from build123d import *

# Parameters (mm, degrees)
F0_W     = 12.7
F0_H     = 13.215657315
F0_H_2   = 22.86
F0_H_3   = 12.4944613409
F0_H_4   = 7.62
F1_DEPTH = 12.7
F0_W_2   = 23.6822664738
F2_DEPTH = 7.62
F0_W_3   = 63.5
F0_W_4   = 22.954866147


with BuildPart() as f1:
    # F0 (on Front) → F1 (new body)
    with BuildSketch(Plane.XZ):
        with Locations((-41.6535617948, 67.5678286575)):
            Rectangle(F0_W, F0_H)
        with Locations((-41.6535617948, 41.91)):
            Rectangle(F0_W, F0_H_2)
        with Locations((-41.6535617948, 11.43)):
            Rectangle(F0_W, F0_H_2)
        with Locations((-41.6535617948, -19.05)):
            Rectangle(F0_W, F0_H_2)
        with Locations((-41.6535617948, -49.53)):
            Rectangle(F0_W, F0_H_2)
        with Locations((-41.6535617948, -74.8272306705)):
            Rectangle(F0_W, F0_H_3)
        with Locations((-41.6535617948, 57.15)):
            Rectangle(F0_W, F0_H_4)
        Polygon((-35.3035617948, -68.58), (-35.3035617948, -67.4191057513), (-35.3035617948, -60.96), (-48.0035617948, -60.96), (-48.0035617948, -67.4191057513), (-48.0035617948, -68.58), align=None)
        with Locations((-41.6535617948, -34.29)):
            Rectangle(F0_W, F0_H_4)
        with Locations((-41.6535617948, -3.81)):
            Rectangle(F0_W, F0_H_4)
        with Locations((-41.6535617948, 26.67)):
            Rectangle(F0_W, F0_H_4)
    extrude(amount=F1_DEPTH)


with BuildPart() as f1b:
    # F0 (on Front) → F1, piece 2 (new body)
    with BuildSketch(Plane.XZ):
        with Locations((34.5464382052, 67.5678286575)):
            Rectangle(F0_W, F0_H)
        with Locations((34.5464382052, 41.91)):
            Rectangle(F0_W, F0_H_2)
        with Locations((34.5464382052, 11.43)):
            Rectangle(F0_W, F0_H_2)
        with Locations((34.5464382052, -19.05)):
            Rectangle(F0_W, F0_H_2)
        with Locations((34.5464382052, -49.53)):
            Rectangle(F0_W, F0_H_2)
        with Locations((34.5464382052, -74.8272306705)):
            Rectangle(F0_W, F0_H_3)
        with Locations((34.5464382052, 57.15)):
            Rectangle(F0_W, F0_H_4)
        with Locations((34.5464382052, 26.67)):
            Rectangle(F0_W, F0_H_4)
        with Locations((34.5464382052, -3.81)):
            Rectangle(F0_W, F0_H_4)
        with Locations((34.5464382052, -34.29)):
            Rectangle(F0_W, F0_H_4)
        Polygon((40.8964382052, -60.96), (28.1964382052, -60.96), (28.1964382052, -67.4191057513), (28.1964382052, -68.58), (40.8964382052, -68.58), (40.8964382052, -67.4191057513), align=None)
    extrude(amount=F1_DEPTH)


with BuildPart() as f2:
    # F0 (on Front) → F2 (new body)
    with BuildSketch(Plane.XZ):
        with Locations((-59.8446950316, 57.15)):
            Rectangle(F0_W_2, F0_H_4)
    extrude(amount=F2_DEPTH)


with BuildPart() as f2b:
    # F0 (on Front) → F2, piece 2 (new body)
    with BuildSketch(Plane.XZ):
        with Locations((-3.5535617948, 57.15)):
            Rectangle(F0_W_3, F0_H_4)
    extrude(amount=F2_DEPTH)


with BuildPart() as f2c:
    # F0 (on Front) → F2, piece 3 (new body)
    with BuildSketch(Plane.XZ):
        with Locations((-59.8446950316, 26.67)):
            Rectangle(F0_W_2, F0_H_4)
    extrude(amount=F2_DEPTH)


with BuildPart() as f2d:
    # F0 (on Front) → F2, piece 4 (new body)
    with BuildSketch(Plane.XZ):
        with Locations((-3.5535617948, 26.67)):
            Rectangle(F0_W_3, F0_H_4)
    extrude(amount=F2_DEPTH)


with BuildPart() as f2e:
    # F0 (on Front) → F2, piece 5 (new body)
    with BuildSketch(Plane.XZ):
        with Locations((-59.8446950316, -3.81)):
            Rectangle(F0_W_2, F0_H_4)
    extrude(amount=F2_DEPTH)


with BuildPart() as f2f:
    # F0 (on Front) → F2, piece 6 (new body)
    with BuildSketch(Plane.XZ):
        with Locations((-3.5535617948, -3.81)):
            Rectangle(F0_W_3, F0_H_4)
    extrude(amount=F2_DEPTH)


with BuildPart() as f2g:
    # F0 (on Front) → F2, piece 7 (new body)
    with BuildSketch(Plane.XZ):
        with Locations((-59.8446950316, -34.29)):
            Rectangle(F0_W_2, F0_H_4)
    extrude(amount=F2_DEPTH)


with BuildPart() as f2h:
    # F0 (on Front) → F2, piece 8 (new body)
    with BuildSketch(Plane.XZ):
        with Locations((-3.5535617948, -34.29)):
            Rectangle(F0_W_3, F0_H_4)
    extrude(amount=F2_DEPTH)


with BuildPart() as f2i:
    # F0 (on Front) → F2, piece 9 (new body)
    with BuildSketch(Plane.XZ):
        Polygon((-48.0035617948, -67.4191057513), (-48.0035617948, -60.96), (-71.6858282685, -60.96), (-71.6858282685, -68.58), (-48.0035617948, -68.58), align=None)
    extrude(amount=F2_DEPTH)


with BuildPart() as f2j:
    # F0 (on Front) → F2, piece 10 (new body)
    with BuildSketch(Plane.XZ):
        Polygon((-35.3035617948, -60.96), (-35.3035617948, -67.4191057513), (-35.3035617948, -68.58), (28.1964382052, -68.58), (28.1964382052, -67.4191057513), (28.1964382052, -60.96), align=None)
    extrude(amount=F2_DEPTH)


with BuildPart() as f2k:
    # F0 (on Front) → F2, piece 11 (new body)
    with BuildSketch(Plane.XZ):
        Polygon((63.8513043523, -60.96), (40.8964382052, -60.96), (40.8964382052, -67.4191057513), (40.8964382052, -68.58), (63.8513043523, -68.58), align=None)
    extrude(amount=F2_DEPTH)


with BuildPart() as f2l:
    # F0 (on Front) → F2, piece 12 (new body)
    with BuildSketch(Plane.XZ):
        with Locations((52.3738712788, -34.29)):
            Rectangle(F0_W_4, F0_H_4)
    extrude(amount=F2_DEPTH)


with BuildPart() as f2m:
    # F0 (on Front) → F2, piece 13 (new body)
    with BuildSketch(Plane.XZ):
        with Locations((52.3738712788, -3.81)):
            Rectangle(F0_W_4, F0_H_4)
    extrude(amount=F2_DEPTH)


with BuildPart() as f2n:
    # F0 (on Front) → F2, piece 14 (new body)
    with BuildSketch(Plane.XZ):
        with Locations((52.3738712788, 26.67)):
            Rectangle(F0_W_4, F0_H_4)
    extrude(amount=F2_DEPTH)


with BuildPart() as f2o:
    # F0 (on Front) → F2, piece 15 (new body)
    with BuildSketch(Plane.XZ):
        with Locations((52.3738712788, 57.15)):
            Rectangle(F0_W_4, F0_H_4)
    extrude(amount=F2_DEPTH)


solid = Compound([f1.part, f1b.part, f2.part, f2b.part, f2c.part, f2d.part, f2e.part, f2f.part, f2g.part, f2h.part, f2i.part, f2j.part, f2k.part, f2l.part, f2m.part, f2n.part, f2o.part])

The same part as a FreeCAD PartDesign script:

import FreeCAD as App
import Part
import Sketcher
from FreeCAD import Vector
Q = App.Units.Quantity

doc = App.newDocument("Part")
body = doc.addObject("PartDesign::Body", "Body")

# Sketch on XZ plane
sketch1 = body.newObject("Sketcher::SketchObject", "Sketch")
sketch1.AttachmentSupport = (doc.getObject("XZ_Plane"), [""])
sketch1.MapMode = "FlatFace"
sketch1.addGeometry([
    Part.LineSegment(Vector(-48.003562, 74.175657, 0), Vector(-48.003562, -81.074461, 0)),
    Part.LineSegment(Vector(-48.003562, -81.074461, 0), Vector(-35.303562, -81.074461, 0)),
    Part.LineSegment(Vector(-35.303562, -81.074461, 0), Vector(-35.303562, 74.175657, 0)),
    Part.LineSegment(Vector(-35.303562, 74.175657, 0), Vector(-48.003562, 74.175657, 0)),
], False)
sketch1.addConstraint([
    Sketcher.Constraint("Coincident", 0, 2, 1, 1),
    Sketcher.Constraint("Coincident", 1, 2, 2, 1),
    Sketcher.Constraint("Coincident", 2, 2, 3, 1),
    Sketcher.Constraint("Coincident", 3, 2, 0, 1),
    Sketcher.Constraint("Vertical", 0),
    Sketcher.Constraint("Horizontal", 1),
    Sketcher.Constraint("Vertical", 2),
    Sketcher.Constraint("Horizontal", 3),
    Sketcher.Constraint("DistanceX", 1, 1, 1, 2, Q("0.5 in")),
    Sketcher.Constraint("DistanceY", 0, 2, 0, 1, 155.250119),
    Sketcher.Constraint("DistanceX", 0, 2, -1, 1, 48.003562),
    Sketcher.Constraint("DistanceY", 0, 2, -1, 1, 81.074461),
])
pad1 = body.newObject("PartDesign::Pad", "Pad")
pad1.Profile = sketch1
pad1.Length = Q("0.5 in")
body2 = doc.addObject("PartDesign::Body", "Body001")

# Sketch on XZ plane
sketch2 = body2.newObject("Sketcher::SketchObject", "Sketch001")
sketch2.AttachmentSupport = (doc.getObject("XZ_Plane001"), [""])
sketch2.MapMode = "FlatFace"
sketch2.addGeometry([
    Part.LineSegment(Vector(28.196438, 74.175657, 0), Vector(28.196438, -81.074461, 0)),
    Part.LineSegment(Vector(28.196438, -81.074461, 0), Vector(40.896438, -81.074461, 0)),
    Part.LineSegment(Vector(40.896438, -81.074461, 0), Vector(40.896438, 74.175657, 0)),
    Part.LineSegment(Vector(40.896438, 74.175657, 0), Vector(28.196438, 74.175657, 0)),
], False)
sketch2.addConstraint([
    Sketcher.Constraint("Coincident", 0, 2, 1, 1),
    Sketcher.Constraint("Coincident", 1, 2, 2, 1),
    Sketcher.Constraint("Coincident", 2, 2, 3, 1),
    Sketcher.Constraint("Coincident", 3, 2, 0, 1),
    Sketcher.Constraint("Vertical", 0),
    Sketcher.Constraint("Horizontal", 1),
    Sketcher.Constraint("Vertical", 2),
    Sketcher.Constraint("Horizontal", 3),
    Sketcher.Constraint("DistanceX", 1, 1, 1, 2, Q("0.5 in")),
    Sketcher.Constraint("DistanceY", 0, 2, 0, 1, 155.250119),
    Sketcher.Constraint("DistanceX", -1, 1, 0, 2, 28.196438),
    Sketcher.Constraint("DistanceY", 0, 2, -1, 1, 81.074461),
])
pad2 = body2.newObject("PartDesign::Pad", "Pad001")
pad2.Profile = sketch2
pad2.Length = Q("0.5 in")
body3 = doc.addObject("PartDesign::Body", "Body002")

# Sketch on XZ plane
sketch3 = body3.newObject("Sketcher::SketchObject", "Sketch002")
sketch3.AttachmentSupport = (doc.getObject("XZ_Plane002"), [""])
sketch3.MapMode = "FlatFace"
sketch3.addGeometry([
    Part.LineSegment(Vector(-71.685828, 60.96, 0), Vector(-71.685828, 53.34, 0)),
    Part.LineSegment(Vector(-71.685828, 53.34, 0), Vector(-48.003562, 53.34, 0)),
    Part.LineSegment(Vector(-48.003562, 53.34, 0), Vector(-48.003562, 60.96, 0)),
    Part.LineSegment(Vector(-48.003562, 60.96, 0), Vector(-71.685828, 60.96, 0)),
], False)
sketch3.addConstraint([
    Sketcher.Constraint("Coincident", 0, 2, 1, 1),
    Sketcher.Constraint("Coincident", 1, 2, 2, 1),
    Sketcher.Constraint("Coincident", 2, 2, 3, 1),
    Sketcher.Constraint("Coincident", 3, 2, 0, 1),
    Sketcher.Constraint("Vertical", 0),
    Sketcher.Constraint("Horizontal", 1),
    Sketcher.Constraint("Vertical", 2),
    Sketcher.Constraint("Horizontal", 3),
    Sketcher.Constraint("DistanceY", 0, 2, 0, 1, Q("0.3 in")),
    Sketcher.Constraint("DistanceY", -1, 1, 0, 2, Q("2.1 in")),
    Sketcher.Constraint("DistanceX", 1, 1, 1, 2, 23.682266),
    Sketcher.Constraint("DistanceX", 0, 2, -1, 1, 71.685828),
])
pad3 = body3.newObject("PartDesign::Pad", "Pad002")
pad3.Profile = sketch3
pad3.Length = Q("0.3 in")
body4 = doc.addObject("PartDesign::Body", "Body003")

# Sketch on XZ plane
sketch4 = body4.newObject("Sketcher::SketchObject", "Sketch003")
sketch4.AttachmentSupport = (doc.getObject("XZ_Plane003"), [""])
sketch4.MapMode = "FlatFace"
sketch4.addGeometry([
    Part.LineSegment(Vector(-35.303562, 60.96, 0), Vector(-35.303562, 53.34, 0)),
    Part.LineSegment(Vector(-35.303562, 53.34, 0), Vector(28.196438, 53.34, 0)),
    Part.LineSegment(Vector(28.196438, 53.34, 0), Vector(28.196438, 60.96, 0)),
    Part.LineSegment(Vector(28.196438, 60.96, 0), Vector(-35.303562, 60.96, 0)),
], False)
sketch4.addConstraint([
    Sketcher.Constraint("Coincident", 0, 2, 1, 1),
    Sketcher.Constraint("Coincident", 1, 2, 2, 1),
    Sketcher.Constraint("Coincident", 2, 2, 3, 1),
    Sketcher.Constraint("Coincident", 3, 2, 0, 1),
    Sketcher.Constraint("Vertical", 0),
    Sketcher.Constraint("Horizontal", 1),
    Sketcher.Constraint("Vertical", 2),
    Sketcher.Constraint("Horizontal", 3),
    Sketcher.Constraint("DistanceX", 1, 1, 1, 2, Q("2.5 in")),
    Sketcher.Constraint("DistanceY", 0, 2, 0, 1, Q("0.3 in")),
    Sketcher.Constraint("DistanceY", -1, 1, 0, 2, Q("2.1 in")),
    Sketcher.Constraint("DistanceX", 0, 2, -1, 1, 35.303562),
])
pad4 = body4.newObject("PartDesign::Pad", "Pad003")
pad4.Profile = sketch4
pad4.Length = Q("0.3 in")
body5 = doc.addObject("PartDesign::Body", "Body004")

# Sketch on XZ plane
sketch5 = body5.newObject("Sketcher::SketchObject", "Sketch004")
sketch5.AttachmentSupport = (doc.getObject("XZ_Plane004"), [""])
sketch5.MapMode = "FlatFace"
sketch5.addGeometry([
    Part.LineSegment(Vector(-71.685828, 30.48, 0), Vector(-71.685828, 22.86, 0)),
    Part.LineSegment(Vector(-71.685828, 22.86, 0), Vector(-48.003562, 22.86, 0)),
    Part.LineSegment(Vector(-48.003562, 22.86, 0), Vector(-48.003562, 30.48, 0)),
    Part.LineSegment(Vector(-48.003562, 30.48, 0), Vector(-71.685828, 30.48, 0)),
], False)
sketch5.addConstraint([
    Sketcher.Constraint("Coincident", 0, 2, 1, 1),
    Sketcher.Constraint("Coincident", 1, 2, 2, 1),
    Sketcher.Constraint("Coincident", 2, 2, 3, 1),
    Sketcher.Constraint("Coincident", 3, 2, 0, 1),
    Sketcher.Constraint("Vertical", 0),
    Sketcher.Constraint("Horizontal", 1),
    Sketcher.Constraint("Vertical", 2),
    Sketcher.Constraint("Horizontal", 3),
    Sketcher.Constraint("DistanceY", 0, 2, 0, 1, Q("0.3 in")),
    Sketcher.Constraint("DistanceY", -1, 1, 0, 2, Q("0.9 in")),
    Sketcher.Constraint("DistanceX", 1, 1, 1, 2, 23.682266),
    Sketcher.Constraint("DistanceX", 0, 2, -1, 1, 71.685828),
])
pad5 = body5.newObject("PartDesign::Pad", "Pad004")
pad5.Profile = sketch5
pad5.Length = Q("0.3 in")
body6 = doc.addObject("PartDesign::Body", "Body005")

# Sketch on XZ plane
sketch6 = body6.newObject("Sketcher::SketchObject", "Sketch005")
sketch6.AttachmentSupport = (doc.getObject("XZ_Plane005"), [""])
sketch6.MapMode = "FlatFace"
sketch6.addGeometry([
    Part.LineSegment(Vector(-35.303562, 30.48, 0), Vector(-35.303562, 22.86, 0)),
    Part.LineSegment(Vector(-35.303562, 22.86, 0), Vector(28.196438, 22.86, 0)),
    Part.LineSegment(Vector(28.196438, 22.86, 0), Vector(28.196438, 30.48, 0)),
    Part.LineSegment(Vector(28.196438, 30.48, 0), Vector(-35.303562, 30.48, 0)),
], False)
sketch6.addConstraint([
    Sketcher.Constraint("Coincident", 0, 2, 1, 1),
    Sketcher.Constraint("Coincident", 1, 2, 2, 1),
    Sketcher.Constraint("Coincident", 2, 2, 3, 1),
    Sketcher.Constraint("Coincident", 3, 2, 0, 1),
    Sketcher.Constraint("Vertical", 0),
    Sketcher.Constraint("Horizontal", 1),
    Sketcher.Constraint("Vertical", 2),
    Sketcher.Constraint("Horizontal", 3),
    Sketcher.Constraint("DistanceX", 1, 1, 1, 2, Q("2.5 in")),
    Sketcher.Constraint("DistanceY", 0, 2, 0, 1, Q("0.3 in")),
    Sketcher.Constraint("DistanceY", -1, 1, 0, 2, Q("0.9 in")),
    Sketcher.Constraint("DistanceX", 0, 2, -1, 1, 35.303562),
])
pad6 = body6.newObject("PartDesign::Pad", "Pad005")
pad6.Profile = sketch6
pad6.Length = Q("0.3 in")
body7 = doc.addObject("PartDesign::Body", "Body006")

# Sketch on XZ plane
sketch7 = body7.newObject("Sketcher::SketchObject", "Sketch006")
sketch7.AttachmentSupport = (doc.getObject("XZ_Plane006"), [""])
sketch7.MapMode = "FlatFace"
sketch7.addGeometry([
    Part.LineSegment(Vector(-71.685828, 0, 0), Vector(-71.685828, -7.62, 0)),
    Part.LineSegment(Vector(-71.685828, -7.62, 0), Vector(-48.003562, -7.62, 0)),
    Part.LineSegment(Vector(-48.003562, -7.62, 0), Vector(-48.003562, 0, 0)),
    Part.LineSegment(Vector(-48.003562, 0, 0), Vector(-71.685828, 0, 0)),
], False)
sketch7.addConstraint([
    Sketcher.Constraint("Coincident", 0, 2, 1, 1),
    Sketcher.Constraint("Coincident", 1, 2, 2, 1),
    Sketcher.Constraint("Coincident", 2, 2, 3, 1),
    Sketcher.Constraint("Coincident", 3, 2, 0, 1),
    Sketcher.Constraint("Vertical", 0),
    Sketcher.Constraint("Horizontal", 1),
    Sketcher.Constraint("Vertical", 2),
    Sketcher.Constraint("Horizontal", 3),
    Sketcher.Constraint("PointOnObject", 2, 2, -1),
    Sketcher.Constraint("DistanceY", 0, 2, 0, 1, Q("0.3 in")),
    Sketcher.Constraint("DistanceX", 1, 1, 1, 2, 23.682266),
    Sketcher.Constraint("DistanceX", 0, 2, -1, 1, 71.685828),
])
pad7 = body7.newObject("PartDesign::Pad", "Pad006")
pad7.Profile = sketch7
pad7.Length = Q("0.3 in")
body8 = doc.addObject("PartDesign::Body", "Body007")

# Sketch on XZ plane
sketch8 = body8.newObject("Sketcher::SketchObject", "Sketch007")
sketch8.AttachmentSupport = (doc.getObject("XZ_Plane007"), [""])
sketch8.MapMode = "FlatFace"
sketch8.addGeometry([
    Part.LineSegment(Vector(-35.303562, 0, 0), Vector(-35.303562, -7.62, 0)),
    Part.LineSegment(Vector(-35.303562, -7.62, 0), Vector(28.196438, -7.62, 0)),
    Part.LineSegment(Vector(28.196438, -7.62, 0), Vector(28.196438, 0, 0)),
    Part.LineSegment(Vector(28.196438, 0, 0), Vector(-35.303562, 0, 0)),
], False)
sketch8.addConstraint([
    Sketcher.Constraint("Coincident", 0, 2, 1, 1),
    Sketcher.Constraint("Coincident", 1, 2, 2, 1),
    Sketcher.Constraint("Coincident", 2, 2, 3, 1),
    Sketcher.Constraint("Coincident", 3, 2, 0, 1),
    Sketcher.Constraint("Vertical", 0),
    Sketcher.Constraint("Horizontal", 1),
    Sketcher.Constraint("Vertical", 2),
    Sketcher.Constraint("Horizontal", 3),
    Sketcher.Constraint("PointOnObject", 2, 2, -1),
    Sketcher.Constraint("DistanceX", 1, 1, 1, 2, Q("2.5 in")),
    Sketcher.Constraint("DistanceY", 0, 2, 0, 1, Q("0.3 in")),
    Sketcher.Constraint("DistanceX", 0, 2, -1, 1, 35.303562),
])
pad8 = body8.newObject("PartDesign::Pad", "Pad007")
pad8.Profile = sketch8
pad8.Length = Q("0.3 in")
body9 = doc.addObject("PartDesign::Body", "Body008")

# Sketch on XZ plane
sketch9 = body9.newObject("Sketcher::SketchObject", "Sketch008")
sketch9.AttachmentSupport = (doc.getObject("XZ_Plane008"), [""])
sketch9.MapMode = "FlatFace"
sketch9.addGeometry([
    Part.LineSegment(Vector(-71.685828, -30.48, 0), Vector(-71.685828, -38.1, 0)),
    Part.LineSegment(Vector(-71.685828, -38.1, 0), Vector(-48.003562, -38.1, 0)),
    Part.LineSegment(Vector(-48.003562, -38.1, 0), Vector(-48.003562, -30.48, 0)),
    Part.LineSegment(Vector(-48.003562, -30.48, 0), Vector(-71.685828, -30.48, 0)),
], False)
sketch9.addConstraint([
    Sketcher.Constraint("Coincident", 0, 2, 1, 1),
    Sketcher.Constraint("Coincident", 1, 2, 2, 1),
    Sketcher.Constraint("Coincident", 2, 2, 3, 1),
    Sketcher.Constraint("Coincident", 3, 2, 0, 1),
    Sketcher.Constraint("Vertical", 0),
    Sketcher.Constraint("Horizontal", 1),
    Sketcher.Constraint("Vertical", 2),
    Sketcher.Constraint("Horizontal", 3),
    Sketcher.Constraint("DistanceY", 0, 2, 0, 1, Q("0.3 in")),
    Sketcher.Constraint("DistanceY", 0, 2, -1, 1, Q("1.5 in")),
    Sketcher.Constraint("DistanceX", 1, 1, 1, 2, 23.682266),
    Sketcher.Constraint("DistanceX", 0, 2, -1, 1, 71.685828),
])
pad9 = body9.newObject("PartDesign::Pad", "Pad008")
pad9.Profile = sketch9
pad9.Length = Q("0.3 in")
body10 = doc.addObject("PartDesign::Body", "Body009")

# Sketch on XZ plane
sketch10 = body10.newObject("Sketcher::SketchObject", "Sketch009")
sketch10.AttachmentSupport = (doc.getObject("XZ_Plane009"), [""])
sketch10.MapMode = "FlatFace"
sketch10.addGeometry([
    Part.LineSegment(Vector(-35.303562, -30.48, 0), Vector(-35.303562, -38.1, 0)),
    Part.LineSegment(Vector(-35.303562, -38.1, 0), Vector(28.196438, -38.1, 0)),
    Part.LineSegment(Vector(28.196438, -38.1, 0), Vector(28.196438, -30.48, 0)),
    Part.LineSegment(Vector(28.196438, -30.48, 0), Vector(-35.303562, -30.48, 0)),
], False)
sketch10.addConstraint([
    Sketcher.Constraint("Coincident", 0, 2, 1, 1),
    Sketcher.Constraint("Coincident", 1, 2, 2, 1),
    Sketcher.Constraint("Coincident", 2, 2, 3, 1),
    Sketcher.Constraint("Coincident", 3, 2, 0, 1),
    Sketcher.Constraint("Vertical", 0),
    Sketcher.Constraint("Horizontal", 1),
    Sketcher.Constraint("Vertical", 2),
    Sketcher.Constraint("Horizontal", 3),
    Sketcher.Constraint("DistanceX", 1, 1, 1, 2, Q("2.5 in")),
    Sketcher.Constraint("DistanceY", 0, 2, 0, 1, Q("0.3 in")),
    Sketcher.Constraint("DistanceY", 0, 2, -1, 1, Q("1.5 in")),
    Sketcher.Constraint("DistanceX", 0, 2, -1, 1, 35.303562),
])
pad10 = body10.newObject("PartDesign::Pad", "Pad009")
pad10.Profile = sketch10
pad10.Length = Q("0.3 in")
body11 = doc.addObject("PartDesign::Body", "Body010")

# Sketch on XZ plane
sketch11 = body11.newObject("Sketcher::SketchObject", "Sketch010")
sketch11.AttachmentSupport = (doc.getObject("XZ_Plane010"), [""])
sketch11.MapMode = "FlatFace"
sketch11.addGeometry([
    Part.LineSegment(Vector(-48.003562, -60.96, 0), Vector(-71.685828, -60.96, 0)),
    Part.LineSegment(Vector(-71.685828, -60.96, 0), Vector(-71.685828, -68.58, 0)),
    Part.LineSegment(Vector(-71.685828, -68.58, 0), Vector(-48.003562, -68.58, 0)),
    Part.LineSegment(Vector(-48.003562, -68.58, 0), Vector(-48.003562, -60.96, 0)),
], False)
sketch11.addConstraint([
    Sketcher.Constraint("Coincident", 0, 2, 1, 1),
    Sketcher.Constraint("Coincident", 1, 2, 2, 1),
    Sketcher.Constraint("Coincident", 2, 2, 3, 1),
    Sketcher.Constraint("Coincident", 3, 2, 0, 1),
    Sketcher.Constraint("Horizontal", 0),
    Sketcher.Constraint("Vertical", 1),
    Sketcher.Constraint("Horizontal", 2),
    Sketcher.Constraint("Vertical", 3),
    Sketcher.Constraint("DistanceY", 1, 2, 1, 1, Q("0.3 in")),
    Sketcher.Constraint("DistanceY", 0, 2, -1, 1, Q("2.4 in")),
    Sketcher.Constraint("DistanceX", 0, 2, 0, 1, 23.682266),
    Sketcher.Constraint("DistanceX", 0, 2, -1, 1, 71.685828),
])
pad11 = body11.newObject("PartDesign::Pad", "Pad010")
pad11.Profile = sketch11
pad11.Length = Q("0.3 in")
body12 = doc.addObject("PartDesign::Body", "Body011")

# Sketch on XZ plane
sketch12 = body12.newObject("Sketcher::SketchObject", "Sketch011")
sketch12.AttachmentSupport = (doc.getObject("XZ_Plane011"), [""])
sketch12.MapMode = "FlatFace"
sketch12.addGeometry([
    Part.LineSegment(Vector(-35.303562, -60.96, 0), Vector(-35.303562, -68.58, 0)),
    Part.LineSegment(Vector(-35.303562, -68.58, 0), Vector(28.196438, -68.58, 0)),
    Part.LineSegment(Vector(28.196438, -68.58, 0), Vector(28.196438, -60.96, 0)),
    Part.LineSegment(Vector(28.196438, -60.96, 0), Vector(-35.303562, -60.96, 0)),
], False)
sketch12.addConstraint([
    Sketcher.Constraint("Coincident", 0, 2, 1, 1),
    Sketcher.Constraint("Coincident", 1, 2, 2, 1),
    Sketcher.Constraint("Coincident", 2, 2, 3, 1),
    Sketcher.Constraint("Coincident", 3, 2, 0, 1),
    Sketcher.Constraint("Vertical", 0),
    Sketcher.Constraint("Horizontal", 1),
    Sketcher.Constraint("Vertical", 2),
    Sketcher.Constraint("Horizontal", 3),
    Sketcher.Constraint("DistanceX", 1, 1, 1, 2, Q("2.5 in")),
    Sketcher.Constraint("DistanceY", 0, 2, 0, 1, Q("0.3 in")),
    Sketcher.Constraint("DistanceY", 0, 2, -1, 1, Q("2.7 in")),
    Sketcher.Constraint("DistanceX", 0, 2, -1, 1, 35.303562),
])
pad12 = body12.newObject("PartDesign::Pad", "Pad011")
pad12.Profile = sketch12
pad12.Length = Q("0.3 in")
body13 = doc.addObject("PartDesign::Body", "Body012")

# Sketch on XZ plane
sketch13 = body13.newObject("Sketcher::SketchObject", "Sketch012")
sketch13.AttachmentSupport = (doc.getObject("XZ_Plane012"), [""])
sketch13.MapMode = "FlatFace"
sketch13.addGeometry([
    Part.LineSegment(Vector(63.851304, -60.96, 0), Vector(40.896438, -60.96, 0)),
    Part.LineSegment(Vector(40.896438, -60.96, 0), Vector(40.896438, -68.58, 0)),
    Part.LineSegment(Vector(40.896438, -68.58, 0), Vector(63.851304, -68.58, 0)),
    Part.LineSegment(Vector(63.851304, -68.58, 0), Vector(63.851304, -60.96, 0)),
], False)
sketch13.addConstraint([
    Sketcher.Constraint("Coincident", 0, 2, 1, 1),
    Sketcher.Constraint("Coincident", 1, 2, 2, 1),
    Sketcher.Constraint("Coincident", 2, 2, 3, 1),
    Sketcher.Constraint("Coincident", 3, 2, 0, 1),
    Sketcher.Constraint("Horizontal", 0),
    Sketcher.Constraint("Vertical", 1),
    Sketcher.Constraint("Horizontal", 2),
    Sketcher.Constraint("Vertical", 3),
    Sketcher.Constraint("DistanceY", 1, 2, 1, 1, Q("0.3 in")),
    Sketcher.Constraint("DistanceY", 0, 2, -1, 1, Q("2.4 in")),
    Sketcher.Constraint("DistanceX", 0, 2, 0, 1, 22.954866),
    Sketcher.Constraint("DistanceX", -1, 1, 0, 2, 40.896438),
])
pad13 = body13.newObject("PartDesign::Pad", "Pad012")
pad13.Profile = sketch13
pad13.Length = Q("0.3 in")
body14 = doc.addObject("PartDesign::Body", "Body013")

# Sketch on XZ plane
sketch14 = body14.newObject("Sketcher::SketchObject", "Sketch013")
sketch14.AttachmentSupport = (doc.getObject("XZ_Plane013"), [""])
sketch14.MapMode = "FlatFace"
sketch14.addGeometry([
    Part.LineSegment(Vector(40.896438, -30.48, 0), Vector(40.896438, -38.1, 0)),
    Part.LineSegment(Vector(40.896438, -38.1, 0), Vector(63.851304, -38.1, 0)),
    Part.LineSegment(Vector(63.851304, -38.1, 0), Vector(63.851304, -30.48, 0)),
    Part.LineSegment(Vector(63.851304, -30.48, 0), Vector(40.896438, -30.48, 0)),
], False)
sketch14.addConstraint([
    Sketcher.Constraint("Coincident", 0, 2, 1, 1),
    Sketcher.Constraint("Coincident", 1, 2, 2, 1),
    Sketcher.Constraint("Coincident", 2, 2, 3, 1),
    Sketcher.Constraint("Coincident", 3, 2, 0, 1),
    Sketcher.Constraint("Vertical", 0),
    Sketcher.Constraint("Horizontal", 1),
    Sketcher.Constraint("Vertical", 2),
    Sketcher.Constraint("Horizontal", 3),
    Sketcher.Constraint("DistanceY", 0, 2, 0, 1, Q("0.3 in")),
    Sketcher.Constraint("DistanceY", 0, 2, -1, 1, Q("1.5 in")),
    Sketcher.Constraint("DistanceX", 1, 1, 1, 2, 22.954866),
    Sketcher.Constraint("DistanceX", -1, 1, 0, 2, 40.896438),
])
pad14 = body14.newObject("PartDesign::Pad", "Pad013")
pad14.Profile = sketch14
pad14.Length = Q("0.3 in")
body15 = doc.addObject("PartDesign::Body", "Body014")

# Sketch on XZ plane
sketch15 = body15.newObject("Sketcher::SketchObject", "Sketch014")
sketch15.AttachmentSupport = (doc.getObject("XZ_Plane014"), [""])
sketch15.MapMode = "FlatFace"
sketch15.addGeometry([
    Part.LineSegment(Vector(40.896438, 0, 0), Vector(40.896438, -7.62, 0)),
    Part.LineSegment(Vector(40.896438, -7.62, 0), Vector(63.851304, -7.62, 0)),
    Part.LineSegment(Vector(63.851304, -7.62, 0), Vector(63.851304, 0, 0)),
    Part.LineSegment(Vector(63.851304, 0, 0), Vector(40.896438, 0, 0)),
], False)
sketch15.addConstraint([
    Sketcher.Constraint("Coincident", 0, 2, 1, 1),
    Sketcher.Constraint("Coincident", 1, 2, 2, 1),
    Sketcher.Constraint("Coincident", 2, 2, 3, 1),
    Sketcher.Constraint("Coincident", 3, 2, 0, 1),
    Sketcher.Constraint("Vertical", 0),
    Sketcher.Constraint("Horizontal", 1),
    Sketcher.Constraint("Vertical", 2),
    Sketcher.Constraint("Horizontal", 3),
    Sketcher.Constraint("PointOnObject", 2, 2, -1),
    Sketcher.Constraint("DistanceY", 0, 2, 0, 1, Q("0.3 in")),
    Sketcher.Constraint("DistanceX", 1, 1, 1, 2, 22.954866),
    Sketcher.Constraint("DistanceX", -1, 1, 0, 2, 40.896438),
])
pad15 = body15.newObject("PartDesign::Pad", "Pad014")
pad15.Profile = sketch15
pad15.Length = Q("0.3 in")
body16 = doc.addObject("PartDesign::Body", "Body015")

# Sketch on XZ plane
sketch16 = body16.newObject("Sketcher::SketchObject", "Sketch015")
sketch16.AttachmentSupport = (doc.getObject("XZ_Plane015"), [""])
sketch16.MapMode = "FlatFace"
sketch16.addGeometry([
    Part.LineSegment(Vector(40.896438, 30.48, 0), Vector(40.896438, 22.86, 0)),
    Part.LineSegment(Vector(40.896438, 22.86, 0), Vector(63.851304, 22.86, 0)),
    Part.LineSegment(Vector(63.851304, 22.86, 0), Vector(63.851304, 30.48, 0)),
    Part.LineSegment(Vector(63.851304, 30.48, 0), Vector(40.896438, 30.48, 0)),
], False)
sketch16.addConstraint([
    Sketcher.Constraint("Coincident", 0, 2, 1, 1),
    Sketcher.Constraint("Coincident", 1, 2, 2, 1),
    Sketcher.Constraint("Coincident", 2, 2, 3, 1),
    Sketcher.Constraint("Coincident", 3, 2, 0, 1),
    Sketcher.Constraint("Vertical", 0),
    Sketcher.Constraint("Horizontal", 1),
    Sketcher.Constraint("Vertical", 2),
    Sketcher.Constraint("Horizontal", 3),
    Sketcher.Constraint("DistanceY", 0, 2, 0, 1, Q("0.3 in")),
    Sketcher.Constraint("DistanceY", -1, 1, 0, 2, Q("0.9 in")),
    Sketcher.Constraint("DistanceX", 1, 1, 1, 2, 22.954866),
    Sketcher.Constraint("DistanceX", -1, 1, 0, 2, 40.896438),
])
pad16 = body16.newObject("PartDesign::Pad", "Pad015")
pad16.Profile = sketch16
pad16.Length = Q("0.3 in")
body17 = doc.addObject("PartDesign::Body", "Body016")

# Sketch on XZ plane
sketch17 = body17.newObject("Sketcher::SketchObject", "Sketch016")
sketch17.AttachmentSupport = (doc.getObject("XZ_Plane016"), [""])
sketch17.MapMode = "FlatFace"
sketch17.addGeometry([
    Part.LineSegment(Vector(40.896438, 60.96, 0), Vector(40.896438, 53.34, 0)),
    Part.LineSegment(Vector(40.896438, 53.34, 0), Vector(63.851304, 53.34, 0)),
    Part.LineSegment(Vector(63.851304, 53.34, 0), Vector(63.851304, 60.96, 0)),
    Part.LineSegment(Vector(63.851304, 60.96, 0), Vector(40.896438, 60.96, 0)),
], False)
sketch17.addConstraint([
    Sketcher.Constraint("Coincident", 0, 2, 1, 1),
    Sketcher.Constraint("Coincident", 1, 2, 2, 1),
    Sketcher.Constraint("Coincident", 2, 2, 3, 1),
    Sketcher.Constraint("Coincident", 3, 2, 0, 1),
    Sketcher.Constraint("Vertical", 0),
    Sketcher.Constraint("Horizontal", 1),
    Sketcher.Constraint("Vertical", 2),
    Sketcher.Constraint("Horizontal", 3),
    Sketcher.Constraint("DistanceY", 0, 2, 0, 1, Q("0.3 in")),
    Sketcher.Constraint("DistanceY", -1, 1, 0, 2, Q("2.1 in")),
    Sketcher.Constraint("DistanceX", 1, 1, 1, 2, 22.954866),
    Sketcher.Constraint("DistanceX", -1, 1, 0, 2, 40.896438),
])
pad17 = body17.newObject("PartDesign::Pad", "Pad016")
pad17.Profile = sketch17
pad17.Length = Q("0.3 in")

doc.recompute()
